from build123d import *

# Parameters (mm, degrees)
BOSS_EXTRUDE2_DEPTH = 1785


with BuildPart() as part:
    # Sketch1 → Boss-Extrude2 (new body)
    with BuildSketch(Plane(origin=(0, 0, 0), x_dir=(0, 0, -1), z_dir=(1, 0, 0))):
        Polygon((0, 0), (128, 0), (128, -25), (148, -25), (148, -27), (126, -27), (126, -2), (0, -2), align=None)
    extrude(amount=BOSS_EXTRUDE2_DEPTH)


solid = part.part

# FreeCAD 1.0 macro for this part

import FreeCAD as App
import Part
import Sketcher
Q = App.Units.Quantity

doc = App.newDocument("Part")
body = doc.addObject("PartDesign::Body", "Body")

# Sketch on YZ plane
sketch1 = doc.addObject("Sketcher::SketchObject", "Sketch")
body.addObject(sketch1)
sketch1.AttachmentSupport = (doc.YZ_Plane, [""])
sketch1.MapMode = "FlatFace"
sketch1.addGeometry([
    Part.LineSegment(App.Vector(0, -128, 0), App.Vector(0, 0, 0)),  # 0
    Part.LineSegment(App.Vector(0, 0, 0), App.Vector(-2, 0, 0)),  # 1
    Part.LineSegment(App.Vector(-2, 0, 0), App.Vector(-2, -126, 0)),  # 2
    Part.LineSegment(App.Vector(-2, -126, 0), App.Vector(-27, -126, 0)),  # 3
    Part.LineSegment(App.Vector(-27, -126, 0), App.Vector(-27, -148, 0)),  # 4
    Part.LineSegment(App.Vector(-27, -148, 0), App.Vector(-25, -148, 0)),  # 5
    Part.LineSegment(App.Vector(-25, -148, 0), App.Vector(-25, -128, 0)),  # 6
    Part.LineSegment(App.Vector(-25, -128, 0), App.Vector(0, -128, 0)),  # 7
], False)
sketch1.addConstraint([
    Sketcher.Constraint("Coincident", 0, 2, 1, 1),
    Sketcher.Constraint("Coincident", 1, 2, 2, 1),
    Sketcher.Constraint("Coincident", 2, 2, 3, 1),
    Sketcher.Constraint("Coincident", 3, 2, 4, 1),
    Sketcher.Constraint("Coincident", 4, 2, 5, 1),
    Sketcher.Constraint("Coincident", 5, 2, 6, 1),
    Sketcher.Constraint("Coincident", 6, 2, 7, 1),
    Sketcher.Constraint("Coincident", 7, 2, 0, 1),
    Sketcher.Constraint("Vertical", 0),
    Sketcher.Constraint("Horizontal", 1),
    Sketcher.Constraint("Vertical", 2),
    Sketcher.Constraint("Horizontal", 3),
    Sketcher.Constraint("Vertical", 4),
    Sketcher.Constraint("Horizontal", 5),
    Sketcher.Constraint("Vertical", 6),
    Sketcher.Constraint("Horizontal", 7),
    Sketcher.Constraint("Coincident", 0, 2, -1, 1),
    Sketcher.Constraint("Equal", 1, 5),
    Sketcher.Constraint("DistanceX", 1, 2, 1, 1, Q("2 mm")),
    Sketcher.Constraint("DistanceX", 3, 2, 3, 1, Q("25 mm")),
    Sketcher.Constraint("DistanceY", 0, 1, 0, 2, Q("128 mm")),
    Sketcher.Constraint("DistanceY", 2, 2, 2, 1, Q("126 mm")),
    Sketcher.Constraint("DistanceY", 4, 2, 4, 1, Q("22 mm")),
])
pad1 = doc.addObject("PartDesign::Pad", "Pad")
body.addObject(pad1)
pad1.Profile = sketch1
pad1.Length = 1785

doc.recompute()
